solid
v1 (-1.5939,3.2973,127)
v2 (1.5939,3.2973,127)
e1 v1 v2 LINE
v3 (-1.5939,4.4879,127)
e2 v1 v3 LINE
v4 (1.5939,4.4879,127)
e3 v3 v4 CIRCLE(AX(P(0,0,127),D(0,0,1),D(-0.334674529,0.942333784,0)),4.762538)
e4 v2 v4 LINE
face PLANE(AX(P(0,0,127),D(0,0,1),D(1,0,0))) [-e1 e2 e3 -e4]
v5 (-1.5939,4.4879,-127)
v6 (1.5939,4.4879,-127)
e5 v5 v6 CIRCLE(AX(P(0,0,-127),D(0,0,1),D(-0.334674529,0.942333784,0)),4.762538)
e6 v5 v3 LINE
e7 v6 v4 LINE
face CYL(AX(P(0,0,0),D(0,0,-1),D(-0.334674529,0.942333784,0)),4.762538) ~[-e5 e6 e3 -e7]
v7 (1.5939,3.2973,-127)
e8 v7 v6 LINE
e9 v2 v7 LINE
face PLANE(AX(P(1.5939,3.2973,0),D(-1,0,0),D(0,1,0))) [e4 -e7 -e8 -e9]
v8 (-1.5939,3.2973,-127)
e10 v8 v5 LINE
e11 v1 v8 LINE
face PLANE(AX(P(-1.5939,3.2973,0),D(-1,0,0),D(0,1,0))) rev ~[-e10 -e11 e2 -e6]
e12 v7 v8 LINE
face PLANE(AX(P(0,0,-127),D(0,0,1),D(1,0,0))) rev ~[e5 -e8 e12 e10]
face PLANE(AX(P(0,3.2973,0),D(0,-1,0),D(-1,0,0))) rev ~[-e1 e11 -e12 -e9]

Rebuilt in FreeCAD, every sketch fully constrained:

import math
import FreeCAD as App
import Part
import Sketcher
Q = App.Units.Quantity

doc = App.newDocument("Part")
body = doc.addObject("PartDesign::Body", "Body")

# Sketch on XY plane
sketch1 = body.newObject("Sketcher::SketchObject", "Sketch")
sketch1.AttachmentSupport = (doc.getObject("XY_Plane"), [""])
sketch1.MapMode = "FlatFace"
sketch1.addGeometry([
    Part.LineSegment(App.Vector(-1.5939, 3.2973, 0), App.Vector(-1.5939, 4.4879, 0)),
    Part.ArcOfCircle(Part.Circle(App.Vector(0, 0, 0), App.Vector(0, 0, 1), 4.762538), math.radians(109.552747), math.radians(430.447253)),
    Part.LineSegment(App.Vector(1.5939, 4.4879, 0), App.Vector(1.5939, 3.2973, 0)),
    Part.LineSegment(App.Vector(1.5939, 3.2973, 0), App.Vector(-1.5939, 3.2973, 0)),
], False)
sketch1.addConstraint([
    Sketcher.Constraint("Coincident", 0, 2, 1, 1),
    Sketcher.Constraint("Coincident", 1, 2, 2, 1),
    Sketcher.Constraint("Coincident", 2, 2, 3, 1),
    Sketcher.Constraint("Coincident", 3, 2, 0, 1),
    Sketcher.Constraint("Vertical", 0),
    Sketcher.Constraint("Vertical", 2),
    Sketcher.Constraint("Horizontal", 3),
    Sketcher.Constraint("Coincident", 1, 3, -1, 1),
    Sketcher.Constraint("Horizontal", 0, 2, 1, 2),
    Sketcher.Constraint("Radius", 1, Q("0.1875 in")),
    Sketcher.Constraint("DistanceY", 0, 1, 0, 2, Q("0.046874 in")),
    Sketcher.Constraint("DistanceX", 0, 2, -1, 1, 1.594),
])
pad1 = body.newObject("PartDesign::Pad", "Pad")
pad1.Profile = sketch1
pad1.Length = Q("10 in")
pad1.Midplane = True

doc.recompute()
